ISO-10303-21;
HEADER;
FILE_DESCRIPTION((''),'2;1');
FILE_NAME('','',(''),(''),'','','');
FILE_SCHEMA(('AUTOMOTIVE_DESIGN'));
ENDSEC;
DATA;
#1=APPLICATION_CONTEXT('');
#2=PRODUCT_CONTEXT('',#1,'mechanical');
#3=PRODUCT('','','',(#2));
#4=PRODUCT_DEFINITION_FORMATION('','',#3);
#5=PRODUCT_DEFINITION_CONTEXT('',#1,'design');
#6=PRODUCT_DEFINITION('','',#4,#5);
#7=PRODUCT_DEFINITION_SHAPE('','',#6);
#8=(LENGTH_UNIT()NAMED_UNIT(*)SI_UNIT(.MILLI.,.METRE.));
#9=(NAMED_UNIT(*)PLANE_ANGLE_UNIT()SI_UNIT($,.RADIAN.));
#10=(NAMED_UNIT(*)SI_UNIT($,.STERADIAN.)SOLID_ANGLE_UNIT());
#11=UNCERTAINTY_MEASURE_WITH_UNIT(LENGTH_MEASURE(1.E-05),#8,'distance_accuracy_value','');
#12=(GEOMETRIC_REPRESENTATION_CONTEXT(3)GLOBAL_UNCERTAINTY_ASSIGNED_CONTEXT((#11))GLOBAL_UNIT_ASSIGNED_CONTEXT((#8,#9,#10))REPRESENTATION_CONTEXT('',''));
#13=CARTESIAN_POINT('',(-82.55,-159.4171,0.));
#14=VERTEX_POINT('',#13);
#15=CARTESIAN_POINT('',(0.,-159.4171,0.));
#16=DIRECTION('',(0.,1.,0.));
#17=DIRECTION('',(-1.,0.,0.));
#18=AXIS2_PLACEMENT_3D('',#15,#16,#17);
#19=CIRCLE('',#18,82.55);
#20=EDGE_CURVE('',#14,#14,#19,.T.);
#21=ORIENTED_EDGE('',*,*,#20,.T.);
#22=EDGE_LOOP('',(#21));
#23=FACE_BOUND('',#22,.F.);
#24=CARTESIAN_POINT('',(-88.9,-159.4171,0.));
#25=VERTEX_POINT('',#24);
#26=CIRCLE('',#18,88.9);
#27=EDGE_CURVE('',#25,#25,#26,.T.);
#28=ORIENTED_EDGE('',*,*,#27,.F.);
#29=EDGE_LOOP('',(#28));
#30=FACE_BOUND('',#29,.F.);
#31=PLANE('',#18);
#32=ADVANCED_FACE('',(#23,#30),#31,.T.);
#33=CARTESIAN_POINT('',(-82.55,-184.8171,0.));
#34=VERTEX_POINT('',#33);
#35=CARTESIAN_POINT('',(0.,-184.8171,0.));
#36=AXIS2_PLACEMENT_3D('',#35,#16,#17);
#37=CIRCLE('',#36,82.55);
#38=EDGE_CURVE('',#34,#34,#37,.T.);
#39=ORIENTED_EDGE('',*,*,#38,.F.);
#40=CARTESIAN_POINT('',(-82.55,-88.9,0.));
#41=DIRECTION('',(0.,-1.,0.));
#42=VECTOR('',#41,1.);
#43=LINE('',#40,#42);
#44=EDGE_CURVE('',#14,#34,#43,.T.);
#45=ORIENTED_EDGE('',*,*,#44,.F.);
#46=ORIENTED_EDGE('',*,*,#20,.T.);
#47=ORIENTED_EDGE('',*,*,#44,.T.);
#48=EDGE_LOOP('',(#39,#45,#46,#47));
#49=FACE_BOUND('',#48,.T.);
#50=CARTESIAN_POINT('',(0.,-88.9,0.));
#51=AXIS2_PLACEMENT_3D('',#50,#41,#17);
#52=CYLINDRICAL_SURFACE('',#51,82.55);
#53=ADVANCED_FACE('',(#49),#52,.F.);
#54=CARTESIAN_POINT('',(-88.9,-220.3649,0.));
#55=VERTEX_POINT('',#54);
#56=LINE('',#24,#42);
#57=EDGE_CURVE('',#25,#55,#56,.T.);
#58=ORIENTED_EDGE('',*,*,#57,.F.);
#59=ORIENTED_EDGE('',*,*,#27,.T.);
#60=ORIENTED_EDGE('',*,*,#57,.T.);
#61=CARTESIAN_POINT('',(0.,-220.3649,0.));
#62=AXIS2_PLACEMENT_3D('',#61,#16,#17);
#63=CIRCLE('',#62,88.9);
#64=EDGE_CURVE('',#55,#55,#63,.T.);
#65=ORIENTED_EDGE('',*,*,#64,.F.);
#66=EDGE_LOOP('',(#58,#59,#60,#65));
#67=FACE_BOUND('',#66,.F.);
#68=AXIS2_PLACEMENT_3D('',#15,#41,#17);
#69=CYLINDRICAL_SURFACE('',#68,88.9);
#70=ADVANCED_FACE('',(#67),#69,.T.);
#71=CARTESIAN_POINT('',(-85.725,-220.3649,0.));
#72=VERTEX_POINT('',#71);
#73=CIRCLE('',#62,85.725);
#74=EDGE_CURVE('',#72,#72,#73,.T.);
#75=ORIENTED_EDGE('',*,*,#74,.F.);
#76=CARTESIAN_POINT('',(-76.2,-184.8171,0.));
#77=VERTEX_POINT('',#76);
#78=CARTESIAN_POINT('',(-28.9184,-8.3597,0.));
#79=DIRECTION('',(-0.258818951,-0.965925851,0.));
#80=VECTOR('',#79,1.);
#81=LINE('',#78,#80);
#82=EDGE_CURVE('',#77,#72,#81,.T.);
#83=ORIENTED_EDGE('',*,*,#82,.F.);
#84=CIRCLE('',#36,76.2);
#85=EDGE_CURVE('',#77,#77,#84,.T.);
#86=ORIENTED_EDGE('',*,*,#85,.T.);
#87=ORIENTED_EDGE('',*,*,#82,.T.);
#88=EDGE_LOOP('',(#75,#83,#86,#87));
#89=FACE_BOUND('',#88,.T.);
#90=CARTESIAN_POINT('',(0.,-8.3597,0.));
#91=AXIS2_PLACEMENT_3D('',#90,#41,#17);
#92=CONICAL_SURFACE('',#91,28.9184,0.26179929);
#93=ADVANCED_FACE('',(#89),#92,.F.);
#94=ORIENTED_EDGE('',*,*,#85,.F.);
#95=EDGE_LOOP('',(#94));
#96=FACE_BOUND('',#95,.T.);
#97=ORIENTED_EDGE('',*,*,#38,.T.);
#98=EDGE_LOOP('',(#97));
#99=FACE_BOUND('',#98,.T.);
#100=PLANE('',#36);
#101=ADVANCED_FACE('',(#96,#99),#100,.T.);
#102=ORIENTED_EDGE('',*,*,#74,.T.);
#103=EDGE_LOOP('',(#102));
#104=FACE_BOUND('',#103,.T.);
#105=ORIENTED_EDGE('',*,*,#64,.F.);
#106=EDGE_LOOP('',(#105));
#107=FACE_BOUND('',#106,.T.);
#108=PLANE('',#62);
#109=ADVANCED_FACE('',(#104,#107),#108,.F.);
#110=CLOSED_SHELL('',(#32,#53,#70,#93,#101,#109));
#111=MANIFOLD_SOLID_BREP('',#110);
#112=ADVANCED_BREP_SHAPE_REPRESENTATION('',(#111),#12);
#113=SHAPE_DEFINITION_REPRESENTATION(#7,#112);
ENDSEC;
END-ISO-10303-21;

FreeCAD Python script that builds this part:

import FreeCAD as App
import Part
import Sketcher
Q = App.Units.Quantity

doc = App.newDocument("Part")
body = doc.addObject("PartDesign::Body", "Body")

# Sketch on XY plane
sketch1 = body.newObject("Sketcher::SketchObject", "Sketch")
sketch1.AttachmentSupport = (doc.getObject("XY_Plane"), [""])
sketch1.MapMode = "FlatFace"
sketch1.addGeometry(Part.LineSegment(App.Vector(-85.7, -220.4, 0), App.Vector(-76.2, -184.8, 0)), False)
sketch1.addGeometry(Part.LineSegment(App.Vector(-76.2, -184.8, 0), App.Vector(-82.5, -184.8, 0)), False)
sketch1.addGeometry(Part.LineSegment(App.Vector(-82.5, -184.8, 0), App.Vector(-82.5, -159.4, 0)), False)
sketch1.addGeometry(Part.LineSegment(App.Vector(-82.5, -159.4, 0), App.Vector(-88.9, -159.4, 0)), False)
sketch1.addGeometry(Part.LineSegment(App.Vector(-88.9, -159.4, 0), App.Vector(-88.9, -220.4, 0)), False)
sketch1.addGeometry(Part.LineSegment(App.Vector(-88.9, -220.4, 0), App.Vector(-85.7, -220.4, 0)), False)
sketch1.addConstraint(Sketcher.Constraint("Coincident", 0, 2, 1, 1))
sketch1.addConstraint(Sketcher.Constraint("Coincident", 1, 2, 2, 1))
sketch1.addConstraint(Sketcher.Constraint("Coincident", 2, 2, 3, 1))
sketch1.addConstraint(Sketcher.Constraint("Coincident", 3, 2, 4, 1))
sketch1.addConstraint(Sketcher.Constraint("Coincident", 4, 2, 5, 1))
sketch1.addConstraint(Sketcher.Constraint("Coincident", 5, 2, 0, 1))
sketch1.addConstraint(Sketcher.Constraint("Horizontal", 1))
sketch1.addConstraint(Sketcher.Constraint("Vertical", 2))
sketch1.addConstraint(Sketcher.Constraint("Horizontal", 3))
sketch1.addConstraint(Sketcher.Constraint("Vertical", 4))
sketch1.addConstraint(Sketcher.Constraint("Horizontal", 5))
sketch1.addConstraint(Sketcher.Constraint("Equal", 1, 3))
sketch1.addConstraint(Sketcher.Constraint("DistanceY", 2, 1, 2, 2, Q("1 in")))
sketch1.addConstraint(Sketcher.Constraint("DistanceX", 1, 2, 1, 1, Q("0.25 in")))
sketch1.addConstraint(Sketcher.Constraint("DistanceX", 5, 1, 5, 2, Q("0.125 in")))
sketch1.addConstraint(Sketcher.Constraint("DistanceX", 0, 2, -1, 1, Q("3 in")))
sketch1.addConstraint(Sketcher.Constraint("Angle", 0, Q("75 deg")))
sketch1.addConstraint(Sketcher.Constraint("DistanceY", 0, 2, -1, 1, Q("184.817 mm")))
revolution = body.newObject("PartDesign::Revolution", "Revolution")
revolution.Profile = sketch1
revolution.ReferenceAxis = (sketch1, ["V_Axis"])
revolution.Angle = 360

doc.recompute()
